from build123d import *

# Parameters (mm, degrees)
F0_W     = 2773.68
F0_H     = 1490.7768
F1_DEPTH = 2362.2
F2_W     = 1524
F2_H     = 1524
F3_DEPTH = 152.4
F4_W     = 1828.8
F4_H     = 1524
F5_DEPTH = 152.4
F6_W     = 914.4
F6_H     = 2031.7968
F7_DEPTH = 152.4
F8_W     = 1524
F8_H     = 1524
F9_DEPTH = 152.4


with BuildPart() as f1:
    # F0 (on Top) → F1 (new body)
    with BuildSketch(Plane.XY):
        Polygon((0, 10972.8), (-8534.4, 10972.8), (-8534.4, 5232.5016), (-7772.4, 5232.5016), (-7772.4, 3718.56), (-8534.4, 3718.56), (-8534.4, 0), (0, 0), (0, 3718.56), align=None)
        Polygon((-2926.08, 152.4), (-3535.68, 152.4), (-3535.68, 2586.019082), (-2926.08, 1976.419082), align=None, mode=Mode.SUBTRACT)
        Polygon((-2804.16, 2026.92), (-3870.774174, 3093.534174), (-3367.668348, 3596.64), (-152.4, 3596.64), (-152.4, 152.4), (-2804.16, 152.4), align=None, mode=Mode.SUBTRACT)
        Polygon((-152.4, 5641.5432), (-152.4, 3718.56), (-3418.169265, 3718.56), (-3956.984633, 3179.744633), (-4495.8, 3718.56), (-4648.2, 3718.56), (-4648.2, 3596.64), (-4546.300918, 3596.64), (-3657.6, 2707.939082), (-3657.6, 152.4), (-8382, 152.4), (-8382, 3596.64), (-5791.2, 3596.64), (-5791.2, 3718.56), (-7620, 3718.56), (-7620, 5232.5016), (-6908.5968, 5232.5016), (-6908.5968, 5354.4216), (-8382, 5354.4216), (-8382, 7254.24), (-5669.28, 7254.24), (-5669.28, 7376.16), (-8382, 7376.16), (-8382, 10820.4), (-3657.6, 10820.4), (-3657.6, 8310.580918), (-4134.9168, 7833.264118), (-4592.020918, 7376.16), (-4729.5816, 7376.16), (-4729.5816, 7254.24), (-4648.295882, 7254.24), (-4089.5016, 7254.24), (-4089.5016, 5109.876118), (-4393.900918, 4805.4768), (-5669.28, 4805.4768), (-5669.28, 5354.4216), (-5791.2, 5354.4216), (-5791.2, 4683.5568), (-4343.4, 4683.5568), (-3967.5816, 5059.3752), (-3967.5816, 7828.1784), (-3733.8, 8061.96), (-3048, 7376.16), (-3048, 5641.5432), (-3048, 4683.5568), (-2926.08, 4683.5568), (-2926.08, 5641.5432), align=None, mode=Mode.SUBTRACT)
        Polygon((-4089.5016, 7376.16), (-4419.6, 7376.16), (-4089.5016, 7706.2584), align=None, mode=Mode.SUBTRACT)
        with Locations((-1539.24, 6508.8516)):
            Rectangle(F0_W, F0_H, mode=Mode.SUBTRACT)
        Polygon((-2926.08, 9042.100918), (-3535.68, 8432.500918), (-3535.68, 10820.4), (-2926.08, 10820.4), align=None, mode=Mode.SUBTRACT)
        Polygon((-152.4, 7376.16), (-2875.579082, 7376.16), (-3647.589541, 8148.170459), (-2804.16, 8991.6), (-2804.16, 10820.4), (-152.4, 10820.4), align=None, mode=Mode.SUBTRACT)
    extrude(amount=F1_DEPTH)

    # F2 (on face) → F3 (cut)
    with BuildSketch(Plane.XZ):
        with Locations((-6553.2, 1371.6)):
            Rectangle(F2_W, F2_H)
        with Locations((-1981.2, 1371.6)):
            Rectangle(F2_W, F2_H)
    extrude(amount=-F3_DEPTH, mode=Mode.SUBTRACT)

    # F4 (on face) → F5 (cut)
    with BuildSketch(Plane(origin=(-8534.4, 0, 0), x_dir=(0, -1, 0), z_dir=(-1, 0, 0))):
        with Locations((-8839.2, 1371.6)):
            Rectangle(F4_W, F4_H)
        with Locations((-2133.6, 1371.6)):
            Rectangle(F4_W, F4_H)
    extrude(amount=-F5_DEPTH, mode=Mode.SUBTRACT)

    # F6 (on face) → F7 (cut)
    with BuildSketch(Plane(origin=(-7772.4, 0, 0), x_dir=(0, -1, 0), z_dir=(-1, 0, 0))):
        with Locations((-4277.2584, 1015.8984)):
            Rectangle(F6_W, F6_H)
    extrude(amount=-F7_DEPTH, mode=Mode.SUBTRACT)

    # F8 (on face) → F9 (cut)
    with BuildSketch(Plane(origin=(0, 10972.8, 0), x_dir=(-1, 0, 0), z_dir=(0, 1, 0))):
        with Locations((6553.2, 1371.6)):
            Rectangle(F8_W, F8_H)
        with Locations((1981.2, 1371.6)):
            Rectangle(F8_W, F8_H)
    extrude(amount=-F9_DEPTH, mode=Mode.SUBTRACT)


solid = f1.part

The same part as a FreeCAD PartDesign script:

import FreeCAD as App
import Part
import Sketcher
Q = App.Units.Quantity


def add_polygon(sketch, points):
    """Adds a closed chain of lines whose ends are joined by coincident constraints."""
    first, n = sketch.GeometryCount, len(points)
    for a, b in zip(points, points[1:] + points[:1]):
        sketch.addGeometry(Part.LineSegment(App.Vector(*a, 0), App.Vector(*b, 0)), False)
    for i in range(n):
        sketch.addConstraint(Sketcher.Constraint("Coincident", first + i, 2, first + (i + 1) % n, 1))

doc = App.newDocument("Part")
body = doc.addObject("PartDesign::Body", "Body")

# Sketch on XY plane
sketch1 = body.newObject("Sketcher::SketchObject", "Sketch")
sketch1.AttachmentSupport = (doc.getObject("XY_Plane"), [""])
sketch1.MapMode = "FlatFace"
add_polygon(sketch1, [(0, 10973), (-8534, 10973), (-8534, 5233), (-7772, 5233), (-7772, 3719), (-8534, 3719), (-8534, 0), (0, 0)])  # lines 0-7
add_polygon(sketch1, [(-2926, 1976), (-2926, 152), (-3536, 152), (-3536, 2586)])  # lines 8-11
add_polygon(sketch1, [(-2804, 152), (-2804, 2027), (-3871, 3094), (-3368, 3597), (-152, 3597), (-152, 152)])  # lines 12-17
add_polygon(sketch1, [(-2926, 5642), (-152, 5642), (-152, 3719), (-3418, 3719), (-3957, 3180), (-4496, 3719), (-4648, 3719), (-4648, 3597), (-4546, 3597), (-3658, 2708), (-3658, 152), (-8382, 152), (-8382, 3597), (-5791, 3597), (-5791, 3719), (-7620, 3719), (-7620, 5233), (-6909, 5233), (-6909, 5354), (-8382, 5354), (-8382, 7254), (-5669, 7254), (-5669, 7376), (-8382, 7376), (-8382, 10820), (-3658, 10820), (-3658, 8311), (-4592, 7376), (-4730, 7376), (-4730, 7254), (-4090, 7254), (-4090, 5110), (-4394, 4805), (-5669, 4805), (-5669, 5354), (-5791, 5354), (-5791, 4684), (-4343, 4684), (-3968, 5059), (-3968, 7828), (-3734, 8062), (-3048, 7376), (-3048, 4684), (-2926, 4684)])  # lines 18-61
add_polygon(sketch1, [(-4090, 7706), (-4090, 7376), (-4420, 7376)])  # lines 62-64
add_polygon(sketch1, [(-152, 5763), (-2926, 5763), (-2926, 7254), (-152, 7254)])  # lines 65-68
add_polygon(sketch1, [(-2926, 10820), (-2926, 9042), (-3536, 8433), (-3536, 10820)])  # lines 69-72
add_polygon(sketch1, [(-152, 10820), (-152, 7376), (-2876, 7376), (-3648, 8148), (-2804, 8992), (-2804, 10820)])  # lines 73-78
sketch1.addConstraint(Sketcher.Constraint("Horizontal", 0))
sketch1.addConstraint(Sketcher.Constraint("Vertical", 1))
sketch1.addConstraint(Sketcher.Constraint("Horizontal", 2))
sketch1.addConstraint(Sketcher.Constraint("Vertical", 3))
sketch1.addConstraint(Sketcher.Constraint("Horizontal", 4))
sketch1.addConstraint(Sketcher.Constraint("Vertical", 5))
sketch1.addConstraint(Sketcher.Constraint("Horizontal", 6))
sketch1.addConstraint(Sketcher.Constraint("Vertical", 7))
sketch1.addConstraint(Sketcher.Constraint("Vertical", 8))
sketch1.addConstraint(Sketcher.Constraint("Horizontal", 9))
sketch1.addConstraint(Sketcher.Constraint("Vertical", 10))
sketch1.addConstraint(Sketcher.Constraint("Vertical", 12))
sketch1.addConstraint(Sketcher.Constraint("Horizontal", 15))
sketch1.addConstraint(Sketcher.Constraint("Vertical", 16))
sketch1.addConstraint(Sketcher.Constraint("Horizontal", 17))
sketch1.addConstraint(Sketcher.Constraint("Horizontal", 18))
sketch1.addConstraint(Sketcher.Constraint("Vertical", 19))
sketch1.addConstraint(Sketcher.Constraint("Horizontal", 20))
sketch1.addConstraint(Sketcher.Constraint("Horizontal", 23))
sketch1.addConstraint(Sketcher.Constraint("Vertical", 24))
sketch1.addConstraint(Sketcher.Constraint("Horizontal", 25))
sketch1.addConstraint(Sketcher.Constraint("Vertical", 27))
sketch1.addConstraint(Sketcher.Constraint("Horizontal", 28))
sketch1.addConstraint(Sketcher.Constraint("Vertical", 29))
sketch1.addConstraint(Sketcher.Constraint("Horizontal", 30))
sketch1.addConstraint(Sketcher.Constraint("Vertical", 31))
sketch1.addConstraint(Sketcher.Constraint("Horizontal", 32))
sketch1.addConstraint(Sketcher.Constraint("Vertical", 33))
sketch1.addConstraint(Sketcher.Constraint("Horizontal", 34))
sketch1.addConstraint(Sketcher.Constraint("Vertical", 35))
sketch1.addConstraint(Sketcher.Constraint("Horizontal", 36))
sketch1.addConstraint(Sketcher.Constraint("Vertical", 37))
sketch1.addConstraint(Sketcher.Constraint("Horizontal", 38))
sketch1.addConstraint(Sketcher.Constraint("Vertical", 39))
sketch1.addConstraint(Sketcher.Constraint("Horizontal", 40))
sketch1.addConstraint(Sketcher.Constraint("Vertical", 41))
sketch1.addConstraint(Sketcher.Constraint("Horizontal", 42))
sketch1.addConstraint(Sketcher.Constraint("Vertical", 43))
sketch1.addConstraint(Sketcher.Constraint("Horizontal", 45))
sketch1.addConstraint(Sketcher.Constraint("Vertical", 46))
sketch1.addConstraint(Sketcher.Constraint("Horizontal", 47))
sketch1.addConstraint(Sketcher.Constraint("Vertical", 48))
sketch1.addConstraint(Sketcher.Constraint("Horizontal", 50))
sketch1.addConstraint(Sketcher.Constraint("Vertical", 51))
sketch1.addConstraint(Sketcher.Constraint("Horizontal", 52))
sketch1.addConstraint(Sketcher.Constraint("Vertical", 53))
sketch1.addConstraint(Sketcher.Constraint("Horizontal", 54))
sketch1.addConstraint(Sketcher.Constraint("Vertical", 56))
sketch1.addConstraint(Sketcher.Constraint("Vertical", 59))
sketch1.addConstraint(Sketcher.Constraint("Horizontal", 60))
sketch1.addConstraint(Sketcher.Constraint("Vertical", 61))
sketch1.addConstraint(Sketcher.Constraint("Vertical", 62))
sketch1.addConstraint(Sketcher.Constraint("Horizontal", 63))
sketch1.addConstraint(Sketcher.Constraint("Horizontal", 65))
sketch1.addConstraint(Sketcher.Constraint("Vertical", 66))
sketch1.addConstraint(Sketcher.Constraint("Horizontal", 67))
sketch1.addConstraint(Sketcher.Constraint("Vertical", 68))
sketch1.addConstraint(Sketcher.Constraint("Vertical", 69))
sketch1.addConstraint(Sketcher.Constraint("Vertical", 71))
sketch1.addConstraint(Sketcher.Constraint("Horizontal", 72))
sketch1.addConstraint(Sketcher.Constraint("Vertical", 73))
sketch1.addConstraint(Sketcher.Constraint("Horizontal", 74))
sketch1.addConstraint(Sketcher.Constraint("Vertical", 77))
sketch1.addConstraint(Sketcher.Constraint("Horizontal", 78))
sketch1.addConstraint(Sketcher.Constraint("Coincident", 6, 2, -1, 1))
sketch1.addConstraint(Sketcher.Constraint("Parallel", 11, 13))
sketch1.addConstraint(Sketcher.Constraint("Perpendicular", 13, 14))
sketch1.addConstraint(Sketcher.Constraint("Parallel", 14, 21))
sketch1.addConstraint(Sketcher.Constraint("Perpendicular", 21, 22))
sketch1.addConstraint(Sketcher.Constraint("Parallel", 22, 26))
sketch1.addConstraint(Sketcher.Constraint("Perpendicular", 26, 44))
sketch1.addConstraint(Sketcher.Constraint("Parallel", 44, 49))
sketch1.addConstraint(Sketcher.Constraint("Parallel", 49, 55))
sketch1.addConstraint(Sketcher.Constraint("Parallel", 55, 57))
sketch1.addConstraint(Sketcher.Constraint("Perpendicular", 57, 58))
sketch1.addConstraint(Sketcher.Constraint("Perpendicular", 58, 64))
sketch1.addConstraint(Sketcher.Constraint("Parallel", 64, 70))
sketch1.addConstraint(Sketcher.Constraint("Perpendicular", 70, 75))
sketch1.addConstraint(Sketcher.Constraint("Perpendicular", 75, 76))
sketch1.addConstraint(Sketcher.Constraint("Horizontal", 9, 2, 16, 2))
sketch1.addConstraint(Sketcher.Constraint("Horizontal", 4, 2, 19, 2))
sketch1.addConstraint(Sketcher.Constraint("Horizontal", 20, 2, 22, 2))
sketch1.addConstraint(Sketcher.Constraint("Horizontal", 15, 2, 24, 2))
sketch1.addConstraint(Sketcher.Constraint("Horizontal", 17, 2, 27, 2))
sketch1.addConstraint(Sketcher.Constraint("Horizontal", 25, 2, 29, 2))
sketch1.addConstraint(Sketcher.Constraint("Horizontal", 23, 2, 31, 2))
sketch1.addConstraint(Sketcher.Constraint("Horizontal", 2, 2, 33, 2))
sketch1.addConstraint(Sketcher.Constraint("Horizontal", 40, 2, 44, 2))
sketch1.addConstraint(Sketcher.Constraint("Horizontal", 38, 2, 46, 2))
sketch1.addConstraint(Sketcher.Constraint("Horizontal", 36, 2, 51, 2))
sketch1.addConstraint(Sketcher.Constraint("Horizontal", 45, 2, 58, 2))
sketch1.addConstraint(Sketcher.Constraint("Horizontal", 54, 2, 59, 2))
sketch1.addConstraint(Sketcher.Constraint("Horizontal", 58, 2, 62, 2))
sketch1.addConstraint(Sketcher.Constraint("Horizontal", 47, 2, 66, 2))
sketch1.addConstraint(Sketcher.Constraint("Horizontal", 42, 2, 71, 2))
sketch1.addConstraint(Sketcher.Constraint("Horizontal", 63, 2, 73, 2))
sketch1.addConstraint(Sketcher.Constraint("Horizontal", 72, 2, 77, 2))
sketch1.addConstraint(Sketcher.Constraint("Vertical", 1, 2, 4, 2))
sketch1.addConstraint(Sketcher.Constraint("Vertical", 16, 2, 18, 2))
sketch1.addConstraint(Sketcher.Constraint("Vertical", 29, 2, 36, 2))
sketch1.addConstraint(Sketcher.Constraint("Vertical", 37, 2, 40, 2))
sketch1.addConstraint(Sketcher.Constraint("Vertical", 27, 2, 42, 2))
sketch1.addConstraint(Sketcher.Constraint("Vertical", 39, 2, 50, 2))
sketch1.addConstraint(Sketcher.Constraint("Vertical", 31, 2, 52, 2))
sketch1.addConstraint(Sketcher.Constraint("Vertical", 11, 2, 60, 2))
sketch1.addConstraint(Sketcher.Constraint("Vertical", 48, 2, 62, 2))
sketch1.addConstraint(Sketcher.Constraint("Vertical", 61, 2, 65, 2))
sketch1.addConstraint(Sketcher.Constraint("Vertical", 19, 2, 67, 2))
sketch1.addConstraint(Sketcher.Constraint("Vertical", 66, 2, 69, 2))
sketch1.addConstraint(Sketcher.Constraint("Vertical", 10, 2, 70, 2))
sketch1.addConstraint(Sketcher.Constraint("Vertical", 68, 2, 73, 2))
sketch1.addConstraint(Sketcher.Constraint("Vertical", 17, 2, 76, 2))
sketch1.addConstraint(Sketcher.Constraint("Equal", 52, 60))
sketch1.addConstraint(Sketcher.Constraint("Equal", 60, 24))
sketch1.addConstraint(Sketcher.Constraint("Equal", 31, 35))
sketch1.addConstraint(Sketcher.Constraint("Equal", 35, 39))
sketch1.addConstraint(Sketcher.Constraint("Equal", 29, 41))
sketch1.addConstraint(Sketcher.Constraint("Equal", 63, 62))
sketch1.addConstraint(Sketcher.Constraint("Equal", 32, 77))
sketch1.addConstraint(Sketcher.Constraint("DistanceX", 0, 2, 0, 1, Q("336 in")))
sketch1.addConstraint(Sketcher.Constraint("DistanceX", 2, 1, 2, 2, Q("30 in")))
sketch1.addConstraint(Sketcher.Constraint("DistanceX", 9, 2, 9, 1, Q("24 in")))
sketch1.addConstraint(Sketcher.Constraint("DistanceX", 23, 2, 23, 1, Q("6 in")))
sketch1.addConstraint(Sketcher.Constraint("DistanceX", 28, 2, 28, 1, Q("186 in")))
sketch1.addConstraint(Sketcher.Constraint("DistanceX", 30, 1, 30, 2, Q("102 in")))
sketch1.addConstraint(Sketcher.Constraint("DistanceX", 32, 2, 32, 1, Q("72 in")))
sketch1.addConstraint(Sketcher.Constraint("DistanceX", 54, 1, 54, 2, Q("57 in")))
sketch1.addConstraint(Sketcher.Constraint("DistanceY", 7, 1, 7, 2, Q("432 in")))
sketch1.addConstraint(Sketcher.Constraint("Distance", 21, Q("30 in")))
sketch1.addConstraint(Sketcher.Constraint("DistanceX", 17, 2, 17, 1, Q("104.4 in")))
sketch1.addConstraint(Sketcher.Constraint("DistanceX", 18, 1, 18, 2, Q("109.2 in")))
sketch1.addConstraint(Sketcher.Constraint("DistanceX", 38, 1, 38, 2, Q("106.8 in")))
sketch1.addConstraint(Sketcher.Constraint("DistanceX", 47, 1, 47, 2, Q("25.2 in")))
sketch1.addConstraint(Sketcher.Constraint("DistanceY", 5, 2, 5, 1, Q("146.4 in")))
sketch1.addConstraint(Sketcher.Constraint("DistanceY", 12, 1, 12, 2, Q("73.8 in")))
sketch1.addConstraint(Sketcher.Constraint("DistanceY", 16, 2, 16, 1, Q("135.6 in")))
sketch1.addConstraint(Sketcher.Constraint("DistanceX", 15, 2, -1, 1, Q("6 in")))
sketch1.addConstraint(Sketcher.Constraint("DistanceX", 22, 2, -1, 1, Q("177 in")))
sketch1.addConstraint(Sketcher.Constraint("DistanceX", 26, 2, -1, 1, Q("144 in")))
sketch1.addConstraint(Sketcher.Constraint("DistanceY", -1, 1, 41, 2, Q("426 in")))
sketch1.addConstraint(Sketcher.Constraint("DistanceX", 57, 2, -1, 1, Q("147 in")))
sketch1.addConstraint(Sketcher.Constraint("DistanceX", 63, 2, -1, 1, Q("174 in")))
sketch1.addConstraint(Sketcher.Constraint("DistanceX", 34, 1, 34, 2, Q("28.008 in")))
sketch1.addConstraint(Sketcher.Constraint("DistanceX", 63, 2, 63, 1, Q("12.996 in")))
sketch1.addConstraint(Sketcher.Constraint("DistanceY", 1, 2, 1, 1, Q("225.996 in")))
sketch1.addConstraint(Sketcher.Constraint("DistanceY", 19, 2, 19, 1, Q("75.708 in")))
sketch1.addConstraint(Sketcher.Constraint("DistanceY", 51, 1, 51, 2, Q("21.612 in")))
sketch1.addConstraint(Sketcher.Constraint("DistanceY", 53, 2, 53, 1, Q("26.412 in")))
sketch1.addConstraint(Sketcher.Constraint("DistanceY", 66, 1, 66, 2, Q("58.692 in")))
sketch1.addConstraint(Sketcher.Constraint("DistanceX", 55, 2, -1, 1, Q("156.204 in")))
sketch1.addConstraint(Sketcher.Constraint("DistanceX", 15, 1, 15, 2, 3215.268348))
sketch1.addConstraint(Sketcher.Constraint("DistanceX", 25, 1, 25, 2, 101.899082))
sketch1.addConstraint(Sketcher.Constraint("DistanceX", 50, 2, 50, 1, 1275.379082))
sketch1.addConstraint(Sketcher.Constraint("DistanceY", 8, 2, 8, 1, 1824.019082))
sketch1.addConstraint(Sketcher.Constraint("DistanceY", 43, 2, 43, 1, 2509.819082))
sketch1.addConstraint(Sketcher.Constraint("DistanceY", 69, 2, 69, 1, 1778.299082))
sketch1.addConstraint(Sketcher.Constraint("Distance", 75, 1091.787661))
pad1 = body.newObject("PartDesign::Pad", "Pad")
pad1.Profile = sketch1
pad1.Length = Q("93 in")

# Sketch on XZ plane
sketch2 = body.newObject("Sketcher::SketchObject", "Sketch001")
sketch2.AttachmentSupport = (doc.getObject("XZ_Plane"), [""])
sketch2.MapMode = "FlatFace"
add_polygon(sketch2, [(-7315, 2134), (-7315, 610), (-5791, 610), (-5791, 2134)])  # lines 0-3
add_polygon(sketch2, [(-2743, 2134), (-2743, 610), (-1219, 610), (-1219, 2134)])  # lines 4-7
sketch2.addConstraint(Sketcher.Constraint("Vertical", 0))
sketch2.addConstraint(Sketcher.Constraint("Horizontal", 1))
sketch2.addConstraint(Sketcher.Constraint("Vertical", 2))
sketch2.addConstraint(Sketcher.Constraint("Horizontal", 3))
sketch2.addConstraint(Sketcher.Constraint("Vertical", 4))
sketch2.addConstraint(Sketcher.Constraint("Horizontal", 5))
sketch2.addConstraint(Sketcher.Constraint("Vertical", 6))
sketch2.addConstraint(Sketcher.Constraint("Horizontal", 7))
sketch2.addConstraint(Sketcher.Constraint("Horizontal", 1, 2, 4, 2))
sketch2.addConstraint(Sketcher.Constraint("Horizontal", 3, 2, 6, 2))
sketch2.addConstraint(Sketcher.Constraint("Equal", 3, 5))
sketch2.addConstraint(Sketcher.Constraint("Equal", 7, 0))
sketch2.addConstraint(Sketcher.Constraint("DistanceX", 1, 1, 1, 2, Q("60 in")))
sketch2.addConstraint(Sketcher.Constraint("DistanceX", 0, 2, -1, 1, Q("288 in")))
sketch2.addConstraint(Sketcher.Constraint("DistanceY", -1, 1, 0, 2, Q("24 in")))
sketch2.addConstraint(Sketcher.Constraint("DistanceX", 4, 2, -1, 1, Q("108 in")))
pocket1 = body.newObject("PartDesign::Pocket", "Pocket")
pocket1.Profile = sketch2
pocket1.Length = Q("6 in")

# Sketch on YZ plane
sketch3 = body.newObject("Sketcher::SketchObject", "Sketch002")
sketch3.AttachmentSupport = (doc.getObject("YZ_Plane"), [""])
sketch3.MapMode = "FlatFace"
sketch3.AttachmentOffset = App.Placement(App.Vector(0, 0, -336 * 25.4), App.Rotation())
add_polygon(sketch3, [(9754, 2134), (9754, 610), (7925, 610), (7925, 2134)])  # lines 0-3
add_polygon(sketch3, [(3048, 2134), (3048, 610), (1219, 610), (1219, 2134)])  # lines 4-7
sketch3.addConstraint(Sketcher.Constraint("Vertical", 0))
sketch3.addConstraint(Sketcher.Constraint("Horizontal", 1))
sketch3.addConstraint(Sketcher.Constraint("Vertical", 2))
sketch3.addConstraint(Sketcher.Constraint("Horizontal", 3))
sketch3.addConstraint(Sketcher.Constraint("Vertical", 4))
sketch3.addConstraint(Sketcher.Constraint("Horizontal", 5))
sketch3.addConstraint(Sketcher.Constraint("Vertical", 6))
sketch3.addConstraint(Sketcher.Constraint("Horizontal", 7))
sketch3.addConstraint(Sketcher.Constraint("Horizontal", 1, 2, 4, 2))
sketch3.addConstraint(Sketcher.Constraint("Horizontal", 3, 2, 6, 2))
sketch3.addConstraint(Sketcher.Constraint("Equal", 3, 5))
sketch3.addConstraint(Sketcher.Constraint("DistanceX", 1, 2, 1, 1, Q("72 in")))
sketch3.addConstraint(Sketcher.Constraint("DistanceY", 0, 2, 0, 1, Q("60 in")))
sketch3.addConstraint(Sketcher.Constraint("DistanceX", -1, 1, 0, 2, Q("384 in")))
sketch3.addConstraint(Sketcher.Constraint("DistanceY", -1, 1, 0, 2, Q("24 in")))
sketch3.addConstraint(Sketcher.Constraint("DistanceX", -1, 1, 4, 2, Q("120 in")))
pocket2 = body.newObject("PartDesign::Pocket", "Pocket001")
pocket2.Profile = sketch3
pocket2.Length = Q("6 in")
pocket2.Reversed = True

# Sketch on YZ plane
sketch4 = body.newObject("Sketcher::SketchObject", "Sketch003")
sketch4.AttachmentSupport = (doc.getObject("YZ_Plane"), [""])
sketch4.MapMode = "FlatFace"
sketch4.AttachmentOffset = App.Placement(App.Vector(0, 0, -306 * 25.4), App.Rotation())
add_polygon(sketch4, [(4734, 2032), (4734, 0), (3820, 0), (3820, 2032)])  # lines 0-3
sketch4.addConstraint(Sketcher.Constraint("Vertical", 0))
sketch4.addConstraint(Sketcher.Constraint("Horizontal", 1))
sketch4.addConstraint(Sketcher.Constraint("Vertical", 2))
sketch4.addConstraint(Sketcher.Constraint("Horizontal", 3))
sketch4.addConstraint(Sketcher.Constraint("PointOnObject", 0, 2, -1))
sketch4.addConstraint(Sketcher.Constraint("DistanceX", 1, 2, 1, 1, Q("36 in")))
sketch4.addConstraint(Sketcher.Constraint("DistanceY", 0, 2, 0, 1, Q("79.992 in")))
sketch4.addConstraint(Sketcher.Constraint("DistanceX", -1, 1, 0, 2, Q("186.396 in")))
pocket3 = body.newObject("PartDesign::Pocket", "Pocket002")
pocket3.Profile = sketch4
pocket3.Length = Q("6 in")
pocket3.Reversed = True

# Sketch on XZ plane
sketch5 = body.newObject("Sketcher::SketchObject", "Sketch004")
sketch5.AttachmentSupport = (doc.getObject("XZ_Plane"), [""])
sketch5.MapMode = "FlatFace"
sketch5.AttachmentOffset = App.Placement(App.Vector(0, 0, -432 * 25.4), App.Rotation())
add_polygon(sketch5, [(-5791, 2134), (-5791, 610), (-7315, 610), (-7315, 2134)])  # lines 0-3
add_polygon(sketch5, [(-1219, 2134), (-1219, 610), (-2743, 610), (-2743, 2134)])  # lines 4-7
sketch5.addConstraint(Sketcher.Constraint("Vertical", 0))
sketch5.addConstraint(Sketcher.Constraint("Horizontal", 1))
sketch5.addConstraint(Sketcher.Constraint("Vertical", 2))
sketch5.addConstraint(Sketcher.Constraint("Horizontal", 3))
sketch5.addConstraint(Sketcher.Constraint("Vertical", 4))
sketch5.addConstraint(Sketcher.Constraint("Horizontal", 5))
sketch5.addConstraint(Sketcher.Constraint("Vertical", 6))
sketch5.addConstraint(Sketcher.Constraint("Horizontal", 7))
sketch5.addConstraint(Sketcher.Constraint("Horizontal", 1, 2, 4, 2))
sketch5.addConstraint(Sketcher.Constraint("Horizontal", 3, 2, 6, 2))
sketch5.addConstraint(Sketcher.Constraint("Equal", 3, 5))
sketch5.addConstraint(Sketcher.Constraint("Equal", 7, 0))
sketch5.addConstraint(Sketcher.Constraint("DistanceX", 1, 2, 1, 1, Q("60 in")))
sketch5.addConstraint(Sketcher.Constraint("DistanceX", 0, 2, -1, 1, Q("228 in")))
sketch5.addConstraint(Sketcher.Constraint("DistanceY", -1, 1, 0, 2, Q("24 in")))
sketch5.addConstraint(Sketcher.Constraint("DistanceX", 4, 2, -1, 1, Q("48 in")))
pocket4 = body.newObject("PartDesign::Pocket", "Pocket003")
pocket4.Profile = sketch5
pocket4.Length = Q("6 in")
pocket4.Reversed = True

doc.recompute()
